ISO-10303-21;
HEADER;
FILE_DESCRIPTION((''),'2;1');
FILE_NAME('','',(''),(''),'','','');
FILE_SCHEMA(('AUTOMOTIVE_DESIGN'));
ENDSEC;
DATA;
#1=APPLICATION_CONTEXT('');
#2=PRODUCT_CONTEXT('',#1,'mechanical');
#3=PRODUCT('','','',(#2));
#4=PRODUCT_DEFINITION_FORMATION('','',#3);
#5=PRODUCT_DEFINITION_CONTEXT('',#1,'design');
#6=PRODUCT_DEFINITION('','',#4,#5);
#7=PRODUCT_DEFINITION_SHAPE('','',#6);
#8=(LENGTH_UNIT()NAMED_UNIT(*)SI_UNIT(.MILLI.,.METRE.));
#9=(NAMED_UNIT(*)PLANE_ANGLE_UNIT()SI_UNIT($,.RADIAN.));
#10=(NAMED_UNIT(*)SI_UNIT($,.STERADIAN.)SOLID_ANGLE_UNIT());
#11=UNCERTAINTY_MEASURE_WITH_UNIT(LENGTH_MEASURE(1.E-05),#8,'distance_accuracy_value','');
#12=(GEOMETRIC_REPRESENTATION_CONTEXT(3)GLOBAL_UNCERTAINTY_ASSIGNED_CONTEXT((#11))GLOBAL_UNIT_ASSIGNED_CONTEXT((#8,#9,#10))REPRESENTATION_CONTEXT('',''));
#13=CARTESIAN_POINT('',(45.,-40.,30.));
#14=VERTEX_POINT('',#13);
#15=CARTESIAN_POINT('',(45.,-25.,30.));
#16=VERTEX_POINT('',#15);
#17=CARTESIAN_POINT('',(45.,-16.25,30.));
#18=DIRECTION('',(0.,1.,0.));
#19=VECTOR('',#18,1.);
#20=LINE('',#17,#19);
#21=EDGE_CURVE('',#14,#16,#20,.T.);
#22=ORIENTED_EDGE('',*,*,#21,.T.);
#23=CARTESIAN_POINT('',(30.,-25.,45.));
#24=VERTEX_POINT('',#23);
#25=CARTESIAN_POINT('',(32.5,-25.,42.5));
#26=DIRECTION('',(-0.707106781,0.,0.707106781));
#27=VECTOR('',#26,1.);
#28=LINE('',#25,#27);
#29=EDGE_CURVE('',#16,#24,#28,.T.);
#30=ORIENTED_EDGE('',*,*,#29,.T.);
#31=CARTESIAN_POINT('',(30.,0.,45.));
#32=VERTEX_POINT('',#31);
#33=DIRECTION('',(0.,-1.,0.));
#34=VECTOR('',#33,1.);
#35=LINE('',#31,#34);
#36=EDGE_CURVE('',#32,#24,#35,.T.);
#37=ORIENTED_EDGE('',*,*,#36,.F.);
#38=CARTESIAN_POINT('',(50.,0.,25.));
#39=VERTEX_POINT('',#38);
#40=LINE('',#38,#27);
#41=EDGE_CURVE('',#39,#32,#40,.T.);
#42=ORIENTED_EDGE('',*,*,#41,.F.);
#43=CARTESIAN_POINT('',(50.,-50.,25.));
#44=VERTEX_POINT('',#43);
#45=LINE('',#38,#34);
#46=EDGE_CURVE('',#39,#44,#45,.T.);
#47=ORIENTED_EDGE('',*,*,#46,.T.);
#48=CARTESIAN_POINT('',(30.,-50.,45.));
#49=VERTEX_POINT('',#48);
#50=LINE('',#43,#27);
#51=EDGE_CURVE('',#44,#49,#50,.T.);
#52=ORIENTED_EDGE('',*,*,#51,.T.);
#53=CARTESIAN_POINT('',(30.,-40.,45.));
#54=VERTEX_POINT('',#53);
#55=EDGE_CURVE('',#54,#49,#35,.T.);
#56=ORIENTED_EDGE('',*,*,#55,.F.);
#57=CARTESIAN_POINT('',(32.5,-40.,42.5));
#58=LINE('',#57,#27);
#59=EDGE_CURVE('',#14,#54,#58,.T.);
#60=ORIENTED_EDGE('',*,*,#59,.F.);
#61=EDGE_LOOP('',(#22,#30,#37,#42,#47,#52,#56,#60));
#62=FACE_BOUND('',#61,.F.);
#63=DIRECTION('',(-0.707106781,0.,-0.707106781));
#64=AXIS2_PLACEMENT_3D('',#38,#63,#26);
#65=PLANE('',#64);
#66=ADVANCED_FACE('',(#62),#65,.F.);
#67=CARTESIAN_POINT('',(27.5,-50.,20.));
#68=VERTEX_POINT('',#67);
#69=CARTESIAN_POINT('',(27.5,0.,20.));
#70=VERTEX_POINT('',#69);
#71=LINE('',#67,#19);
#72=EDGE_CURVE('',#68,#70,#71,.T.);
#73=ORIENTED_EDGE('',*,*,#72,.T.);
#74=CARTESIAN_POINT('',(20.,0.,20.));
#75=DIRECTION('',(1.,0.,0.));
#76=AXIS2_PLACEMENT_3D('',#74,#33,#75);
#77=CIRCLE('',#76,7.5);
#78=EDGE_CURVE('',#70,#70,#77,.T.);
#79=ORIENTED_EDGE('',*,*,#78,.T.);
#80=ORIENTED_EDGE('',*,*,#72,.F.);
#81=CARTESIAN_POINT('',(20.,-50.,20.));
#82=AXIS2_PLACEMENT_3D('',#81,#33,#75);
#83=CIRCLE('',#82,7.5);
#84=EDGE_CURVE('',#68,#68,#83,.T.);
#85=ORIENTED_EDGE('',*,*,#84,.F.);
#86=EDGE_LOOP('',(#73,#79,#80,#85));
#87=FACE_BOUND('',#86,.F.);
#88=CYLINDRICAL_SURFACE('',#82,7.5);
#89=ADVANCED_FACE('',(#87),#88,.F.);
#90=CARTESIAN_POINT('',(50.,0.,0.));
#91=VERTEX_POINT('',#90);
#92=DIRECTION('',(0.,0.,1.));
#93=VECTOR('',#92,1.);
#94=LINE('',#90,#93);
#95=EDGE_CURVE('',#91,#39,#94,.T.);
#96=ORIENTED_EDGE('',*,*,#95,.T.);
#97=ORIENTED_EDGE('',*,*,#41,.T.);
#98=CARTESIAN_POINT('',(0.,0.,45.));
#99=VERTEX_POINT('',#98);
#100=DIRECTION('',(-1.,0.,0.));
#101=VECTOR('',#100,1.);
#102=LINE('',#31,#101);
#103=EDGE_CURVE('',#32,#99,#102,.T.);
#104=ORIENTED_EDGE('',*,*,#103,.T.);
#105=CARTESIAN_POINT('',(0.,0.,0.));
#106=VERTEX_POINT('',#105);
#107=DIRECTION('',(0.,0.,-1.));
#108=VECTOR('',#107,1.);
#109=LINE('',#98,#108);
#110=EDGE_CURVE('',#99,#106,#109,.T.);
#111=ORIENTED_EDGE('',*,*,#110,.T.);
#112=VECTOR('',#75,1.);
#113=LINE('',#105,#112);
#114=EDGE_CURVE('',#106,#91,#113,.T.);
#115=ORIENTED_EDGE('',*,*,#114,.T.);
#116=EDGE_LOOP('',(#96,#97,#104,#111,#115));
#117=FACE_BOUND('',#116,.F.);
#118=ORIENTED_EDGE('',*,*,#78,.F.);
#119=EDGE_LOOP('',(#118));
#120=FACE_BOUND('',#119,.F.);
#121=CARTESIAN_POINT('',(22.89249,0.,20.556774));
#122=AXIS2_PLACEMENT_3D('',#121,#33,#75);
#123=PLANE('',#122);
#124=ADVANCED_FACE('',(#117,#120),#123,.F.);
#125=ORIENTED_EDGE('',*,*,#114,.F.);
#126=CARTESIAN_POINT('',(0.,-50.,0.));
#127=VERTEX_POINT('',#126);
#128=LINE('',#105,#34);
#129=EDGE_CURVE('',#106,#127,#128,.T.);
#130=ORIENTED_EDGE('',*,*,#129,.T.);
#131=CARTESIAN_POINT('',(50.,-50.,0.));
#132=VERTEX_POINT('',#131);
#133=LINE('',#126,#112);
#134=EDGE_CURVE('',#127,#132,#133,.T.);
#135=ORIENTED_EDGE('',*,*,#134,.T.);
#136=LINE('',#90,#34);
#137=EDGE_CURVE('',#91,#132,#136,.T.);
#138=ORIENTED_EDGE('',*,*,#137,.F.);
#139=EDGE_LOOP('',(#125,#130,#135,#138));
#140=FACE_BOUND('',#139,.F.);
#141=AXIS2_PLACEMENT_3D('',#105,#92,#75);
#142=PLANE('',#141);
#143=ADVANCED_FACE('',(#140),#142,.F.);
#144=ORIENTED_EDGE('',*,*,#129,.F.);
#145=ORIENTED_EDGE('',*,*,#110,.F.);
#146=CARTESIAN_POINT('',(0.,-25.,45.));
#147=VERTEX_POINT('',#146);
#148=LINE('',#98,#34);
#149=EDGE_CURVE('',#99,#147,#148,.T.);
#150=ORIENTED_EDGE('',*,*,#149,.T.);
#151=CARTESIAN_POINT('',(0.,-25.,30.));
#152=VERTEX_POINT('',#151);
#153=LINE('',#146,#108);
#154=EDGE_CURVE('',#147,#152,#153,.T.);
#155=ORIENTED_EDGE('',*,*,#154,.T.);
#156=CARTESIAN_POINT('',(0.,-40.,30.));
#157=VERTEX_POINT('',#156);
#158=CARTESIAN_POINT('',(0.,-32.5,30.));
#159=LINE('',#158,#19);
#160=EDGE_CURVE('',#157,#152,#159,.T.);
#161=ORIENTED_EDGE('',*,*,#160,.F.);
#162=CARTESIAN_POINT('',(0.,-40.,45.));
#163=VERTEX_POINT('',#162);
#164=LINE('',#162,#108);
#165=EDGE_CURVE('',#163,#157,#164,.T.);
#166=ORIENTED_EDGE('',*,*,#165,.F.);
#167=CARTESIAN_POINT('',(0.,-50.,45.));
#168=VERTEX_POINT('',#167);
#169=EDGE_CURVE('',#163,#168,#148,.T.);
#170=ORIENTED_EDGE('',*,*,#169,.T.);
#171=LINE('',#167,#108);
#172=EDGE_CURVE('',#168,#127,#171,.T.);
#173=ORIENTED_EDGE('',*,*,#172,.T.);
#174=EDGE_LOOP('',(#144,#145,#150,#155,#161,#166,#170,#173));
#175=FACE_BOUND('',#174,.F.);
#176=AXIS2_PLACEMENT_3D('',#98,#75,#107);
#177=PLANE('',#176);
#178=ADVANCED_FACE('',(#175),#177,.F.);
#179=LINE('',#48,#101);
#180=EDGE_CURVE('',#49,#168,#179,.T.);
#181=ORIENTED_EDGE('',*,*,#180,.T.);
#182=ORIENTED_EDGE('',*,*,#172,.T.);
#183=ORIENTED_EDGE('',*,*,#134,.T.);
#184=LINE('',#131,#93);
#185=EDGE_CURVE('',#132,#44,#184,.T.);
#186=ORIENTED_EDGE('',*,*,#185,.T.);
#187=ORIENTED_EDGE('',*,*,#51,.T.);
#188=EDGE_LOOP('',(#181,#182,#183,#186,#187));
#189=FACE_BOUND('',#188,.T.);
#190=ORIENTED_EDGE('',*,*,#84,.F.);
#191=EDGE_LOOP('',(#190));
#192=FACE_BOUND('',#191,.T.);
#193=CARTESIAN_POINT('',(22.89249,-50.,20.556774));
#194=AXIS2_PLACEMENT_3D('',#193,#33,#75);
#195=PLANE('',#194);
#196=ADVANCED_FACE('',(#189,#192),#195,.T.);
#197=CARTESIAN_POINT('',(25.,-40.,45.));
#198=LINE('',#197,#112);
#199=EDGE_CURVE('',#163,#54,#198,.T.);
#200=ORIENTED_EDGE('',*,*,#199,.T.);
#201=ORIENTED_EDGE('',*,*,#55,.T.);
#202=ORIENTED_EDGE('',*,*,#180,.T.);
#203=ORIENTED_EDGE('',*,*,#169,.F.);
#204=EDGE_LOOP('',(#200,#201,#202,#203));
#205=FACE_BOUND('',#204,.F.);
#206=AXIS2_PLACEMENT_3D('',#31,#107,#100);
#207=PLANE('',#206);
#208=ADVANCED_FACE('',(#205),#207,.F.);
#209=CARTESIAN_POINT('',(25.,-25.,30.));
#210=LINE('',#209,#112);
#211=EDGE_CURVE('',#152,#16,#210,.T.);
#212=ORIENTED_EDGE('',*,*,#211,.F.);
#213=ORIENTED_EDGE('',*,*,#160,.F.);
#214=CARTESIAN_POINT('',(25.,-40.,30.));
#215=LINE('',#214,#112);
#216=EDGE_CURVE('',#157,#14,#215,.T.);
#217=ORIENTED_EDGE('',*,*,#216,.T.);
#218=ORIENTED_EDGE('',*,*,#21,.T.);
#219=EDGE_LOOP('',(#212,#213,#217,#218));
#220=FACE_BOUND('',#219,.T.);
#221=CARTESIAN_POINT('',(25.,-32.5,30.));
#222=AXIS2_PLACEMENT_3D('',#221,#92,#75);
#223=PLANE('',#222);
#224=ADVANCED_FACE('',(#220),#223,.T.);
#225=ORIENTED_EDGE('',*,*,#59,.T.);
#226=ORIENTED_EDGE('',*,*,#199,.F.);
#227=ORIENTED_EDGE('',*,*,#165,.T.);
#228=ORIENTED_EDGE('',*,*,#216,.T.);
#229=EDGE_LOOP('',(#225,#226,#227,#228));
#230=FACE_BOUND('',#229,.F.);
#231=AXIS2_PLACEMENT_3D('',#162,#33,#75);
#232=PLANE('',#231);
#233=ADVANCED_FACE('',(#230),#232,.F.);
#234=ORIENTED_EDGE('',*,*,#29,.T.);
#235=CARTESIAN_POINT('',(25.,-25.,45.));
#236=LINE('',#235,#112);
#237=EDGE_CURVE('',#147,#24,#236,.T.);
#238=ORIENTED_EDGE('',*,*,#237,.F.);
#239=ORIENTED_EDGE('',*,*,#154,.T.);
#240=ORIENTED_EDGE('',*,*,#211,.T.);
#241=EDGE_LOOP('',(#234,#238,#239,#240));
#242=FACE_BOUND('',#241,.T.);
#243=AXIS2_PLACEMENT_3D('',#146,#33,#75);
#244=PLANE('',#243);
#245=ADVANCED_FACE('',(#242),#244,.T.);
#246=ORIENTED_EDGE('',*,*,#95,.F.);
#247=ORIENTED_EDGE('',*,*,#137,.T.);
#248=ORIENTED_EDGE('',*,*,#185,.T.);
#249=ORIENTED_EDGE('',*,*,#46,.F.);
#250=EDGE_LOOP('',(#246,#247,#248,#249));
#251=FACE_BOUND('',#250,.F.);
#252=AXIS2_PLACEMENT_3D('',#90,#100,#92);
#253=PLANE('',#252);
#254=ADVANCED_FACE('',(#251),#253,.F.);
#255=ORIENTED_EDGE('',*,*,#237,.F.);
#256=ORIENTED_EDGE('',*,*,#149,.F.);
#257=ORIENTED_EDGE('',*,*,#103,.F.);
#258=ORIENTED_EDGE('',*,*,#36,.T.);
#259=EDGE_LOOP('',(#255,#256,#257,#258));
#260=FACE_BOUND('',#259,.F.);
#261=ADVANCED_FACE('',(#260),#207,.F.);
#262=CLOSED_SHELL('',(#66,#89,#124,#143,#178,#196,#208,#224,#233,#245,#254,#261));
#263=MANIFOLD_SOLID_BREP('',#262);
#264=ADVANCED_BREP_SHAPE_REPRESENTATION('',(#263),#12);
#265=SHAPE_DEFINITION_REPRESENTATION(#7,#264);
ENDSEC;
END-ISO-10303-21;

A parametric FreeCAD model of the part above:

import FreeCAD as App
import Part
import Sketcher

V = App.Vector


def add_polygon(sketch, points):
    """Adds a closed chain of lines whose ends are joined by coincident constraints."""
    first, n = sketch.GeometryCount, len(points)
    for a, b in zip(points, points[1:] + points[:1]):
        sketch.addGeometry(Part.LineSegment(App.Vector(*a, 0), App.Vector(*b, 0)), False)
    for i in range(n):
        sketch.addConstraint(Sketcher.Constraint("Coincident", first + i, 2, first + (i + 1) % n, 1))

doc = App.newDocument("Part")
body = doc.addObject("PartDesign::Body", "Body")

# Sketch on XZ plane
sketch1 = doc.addObject("Sketcher::SketchObject", "Sketch")
body.addObject(sketch1)
sketch1.AttachmentSupport = (doc.XZ_Plane, [""])
sketch1.MapMode = "FlatFace"
add_polygon(sketch1, [(0, 45), (0, 0), (50, 0), (50, 25), (30, 45)])  # lines 0-4
sketch1.addConstraint([
    Sketcher.Constraint("Vertical", 0),
    Sketcher.Constraint("Horizontal", 1),
    Sketcher.Constraint("Vertical", 2),
    Sketcher.Constraint("Horizontal", 4),
    Sketcher.Constraint("Coincident", 0, 2, -1, 1),
    Sketcher.Constraint("DistanceX", 1, 1, 1, 2, 50.0),
    Sketcher.Constraint("DistanceX", 4, 2, 4, 1, 30.0),
    Sketcher.Constraint("DistanceY", 0, 2, 0, 1, 45.0),
    Sketcher.Constraint("DistanceY", 2, 1, 2, 2, 25.0),
])
pad1 = doc.addObject("PartDesign::Pad", "Pad")
body.addObject(pad1)
pad1.Profile = sketch1
pad1.Length = 50

# Sketch on XZ plane
sketch2 = doc.addObject("Sketcher::SketchObject", "Sketch001")
body.addObject(sketch2)
sketch2.AttachmentSupport = (doc.XZ_Plane, [""])
sketch2.MapMode = "FlatFace"
sketch2.AttachmentOffset = App.Placement(V(0, 0, 50), App.Rotation())
sketch2.addGeometry(Part.Circle(V(20, 20, 0), V(0, 0, 1), 8), False)
sketch2.addConstraint([
    Sketcher.Constraint("Diameter", 0, 15.0),
    Sketcher.Constraint("DistanceX", -1, 1, 0, 3, 20.0),
    Sketcher.Constraint("DistanceY", -1, 1, 0, 3, 20.0),
])
pocket1 = doc.addObject("PartDesign::Pocket", "Pocket")
body.addObject(pocket1)
pocket1.Profile = sketch2
pocket1.Type = "ThroughAll"

# Sketch on XY plane
sketch3 = doc.addObject("Sketcher::SketchObject", "Sketch002")
body.addObject(sketch3)
sketch3.AttachmentSupport = (doc.XY_Plane, [""])
sketch3.MapMode = "FlatFace"
sketch3.AttachmentOffset = App.Placement(V(0, 0, 45), App.Rotation())
add_polygon(sketch3, [(0, -25), (0, -40), (50, -40), (50, -25)])  # lines 0-3
sketch3.addConstraint([
    Sketcher.Constraint("Vertical", 0),
    Sketcher.Constraint("Horizontal", 1),
    Sketcher.Constraint("Vertical", 2),
    Sketcher.Constraint("Horizontal", 3),
    Sketcher.Constraint("PointOnObject", 0, 2, -2),
    Sketcher.Constraint("DistanceX", 1, 1, 1, 2, 50.0),
    Sketcher.Constraint("DistanceY", 0, 2, 0, 1, 15.0),
    Sketcher.Constraint("DistanceY", 0, 2, -1, 1, 40.0),
])
pocket2 = doc.addObject("PartDesign::Pocket", "Pocket001")
body.addObject(pocket2)
pocket2.Profile = sketch3
pocket2.Length = 15

doc.recompute()
